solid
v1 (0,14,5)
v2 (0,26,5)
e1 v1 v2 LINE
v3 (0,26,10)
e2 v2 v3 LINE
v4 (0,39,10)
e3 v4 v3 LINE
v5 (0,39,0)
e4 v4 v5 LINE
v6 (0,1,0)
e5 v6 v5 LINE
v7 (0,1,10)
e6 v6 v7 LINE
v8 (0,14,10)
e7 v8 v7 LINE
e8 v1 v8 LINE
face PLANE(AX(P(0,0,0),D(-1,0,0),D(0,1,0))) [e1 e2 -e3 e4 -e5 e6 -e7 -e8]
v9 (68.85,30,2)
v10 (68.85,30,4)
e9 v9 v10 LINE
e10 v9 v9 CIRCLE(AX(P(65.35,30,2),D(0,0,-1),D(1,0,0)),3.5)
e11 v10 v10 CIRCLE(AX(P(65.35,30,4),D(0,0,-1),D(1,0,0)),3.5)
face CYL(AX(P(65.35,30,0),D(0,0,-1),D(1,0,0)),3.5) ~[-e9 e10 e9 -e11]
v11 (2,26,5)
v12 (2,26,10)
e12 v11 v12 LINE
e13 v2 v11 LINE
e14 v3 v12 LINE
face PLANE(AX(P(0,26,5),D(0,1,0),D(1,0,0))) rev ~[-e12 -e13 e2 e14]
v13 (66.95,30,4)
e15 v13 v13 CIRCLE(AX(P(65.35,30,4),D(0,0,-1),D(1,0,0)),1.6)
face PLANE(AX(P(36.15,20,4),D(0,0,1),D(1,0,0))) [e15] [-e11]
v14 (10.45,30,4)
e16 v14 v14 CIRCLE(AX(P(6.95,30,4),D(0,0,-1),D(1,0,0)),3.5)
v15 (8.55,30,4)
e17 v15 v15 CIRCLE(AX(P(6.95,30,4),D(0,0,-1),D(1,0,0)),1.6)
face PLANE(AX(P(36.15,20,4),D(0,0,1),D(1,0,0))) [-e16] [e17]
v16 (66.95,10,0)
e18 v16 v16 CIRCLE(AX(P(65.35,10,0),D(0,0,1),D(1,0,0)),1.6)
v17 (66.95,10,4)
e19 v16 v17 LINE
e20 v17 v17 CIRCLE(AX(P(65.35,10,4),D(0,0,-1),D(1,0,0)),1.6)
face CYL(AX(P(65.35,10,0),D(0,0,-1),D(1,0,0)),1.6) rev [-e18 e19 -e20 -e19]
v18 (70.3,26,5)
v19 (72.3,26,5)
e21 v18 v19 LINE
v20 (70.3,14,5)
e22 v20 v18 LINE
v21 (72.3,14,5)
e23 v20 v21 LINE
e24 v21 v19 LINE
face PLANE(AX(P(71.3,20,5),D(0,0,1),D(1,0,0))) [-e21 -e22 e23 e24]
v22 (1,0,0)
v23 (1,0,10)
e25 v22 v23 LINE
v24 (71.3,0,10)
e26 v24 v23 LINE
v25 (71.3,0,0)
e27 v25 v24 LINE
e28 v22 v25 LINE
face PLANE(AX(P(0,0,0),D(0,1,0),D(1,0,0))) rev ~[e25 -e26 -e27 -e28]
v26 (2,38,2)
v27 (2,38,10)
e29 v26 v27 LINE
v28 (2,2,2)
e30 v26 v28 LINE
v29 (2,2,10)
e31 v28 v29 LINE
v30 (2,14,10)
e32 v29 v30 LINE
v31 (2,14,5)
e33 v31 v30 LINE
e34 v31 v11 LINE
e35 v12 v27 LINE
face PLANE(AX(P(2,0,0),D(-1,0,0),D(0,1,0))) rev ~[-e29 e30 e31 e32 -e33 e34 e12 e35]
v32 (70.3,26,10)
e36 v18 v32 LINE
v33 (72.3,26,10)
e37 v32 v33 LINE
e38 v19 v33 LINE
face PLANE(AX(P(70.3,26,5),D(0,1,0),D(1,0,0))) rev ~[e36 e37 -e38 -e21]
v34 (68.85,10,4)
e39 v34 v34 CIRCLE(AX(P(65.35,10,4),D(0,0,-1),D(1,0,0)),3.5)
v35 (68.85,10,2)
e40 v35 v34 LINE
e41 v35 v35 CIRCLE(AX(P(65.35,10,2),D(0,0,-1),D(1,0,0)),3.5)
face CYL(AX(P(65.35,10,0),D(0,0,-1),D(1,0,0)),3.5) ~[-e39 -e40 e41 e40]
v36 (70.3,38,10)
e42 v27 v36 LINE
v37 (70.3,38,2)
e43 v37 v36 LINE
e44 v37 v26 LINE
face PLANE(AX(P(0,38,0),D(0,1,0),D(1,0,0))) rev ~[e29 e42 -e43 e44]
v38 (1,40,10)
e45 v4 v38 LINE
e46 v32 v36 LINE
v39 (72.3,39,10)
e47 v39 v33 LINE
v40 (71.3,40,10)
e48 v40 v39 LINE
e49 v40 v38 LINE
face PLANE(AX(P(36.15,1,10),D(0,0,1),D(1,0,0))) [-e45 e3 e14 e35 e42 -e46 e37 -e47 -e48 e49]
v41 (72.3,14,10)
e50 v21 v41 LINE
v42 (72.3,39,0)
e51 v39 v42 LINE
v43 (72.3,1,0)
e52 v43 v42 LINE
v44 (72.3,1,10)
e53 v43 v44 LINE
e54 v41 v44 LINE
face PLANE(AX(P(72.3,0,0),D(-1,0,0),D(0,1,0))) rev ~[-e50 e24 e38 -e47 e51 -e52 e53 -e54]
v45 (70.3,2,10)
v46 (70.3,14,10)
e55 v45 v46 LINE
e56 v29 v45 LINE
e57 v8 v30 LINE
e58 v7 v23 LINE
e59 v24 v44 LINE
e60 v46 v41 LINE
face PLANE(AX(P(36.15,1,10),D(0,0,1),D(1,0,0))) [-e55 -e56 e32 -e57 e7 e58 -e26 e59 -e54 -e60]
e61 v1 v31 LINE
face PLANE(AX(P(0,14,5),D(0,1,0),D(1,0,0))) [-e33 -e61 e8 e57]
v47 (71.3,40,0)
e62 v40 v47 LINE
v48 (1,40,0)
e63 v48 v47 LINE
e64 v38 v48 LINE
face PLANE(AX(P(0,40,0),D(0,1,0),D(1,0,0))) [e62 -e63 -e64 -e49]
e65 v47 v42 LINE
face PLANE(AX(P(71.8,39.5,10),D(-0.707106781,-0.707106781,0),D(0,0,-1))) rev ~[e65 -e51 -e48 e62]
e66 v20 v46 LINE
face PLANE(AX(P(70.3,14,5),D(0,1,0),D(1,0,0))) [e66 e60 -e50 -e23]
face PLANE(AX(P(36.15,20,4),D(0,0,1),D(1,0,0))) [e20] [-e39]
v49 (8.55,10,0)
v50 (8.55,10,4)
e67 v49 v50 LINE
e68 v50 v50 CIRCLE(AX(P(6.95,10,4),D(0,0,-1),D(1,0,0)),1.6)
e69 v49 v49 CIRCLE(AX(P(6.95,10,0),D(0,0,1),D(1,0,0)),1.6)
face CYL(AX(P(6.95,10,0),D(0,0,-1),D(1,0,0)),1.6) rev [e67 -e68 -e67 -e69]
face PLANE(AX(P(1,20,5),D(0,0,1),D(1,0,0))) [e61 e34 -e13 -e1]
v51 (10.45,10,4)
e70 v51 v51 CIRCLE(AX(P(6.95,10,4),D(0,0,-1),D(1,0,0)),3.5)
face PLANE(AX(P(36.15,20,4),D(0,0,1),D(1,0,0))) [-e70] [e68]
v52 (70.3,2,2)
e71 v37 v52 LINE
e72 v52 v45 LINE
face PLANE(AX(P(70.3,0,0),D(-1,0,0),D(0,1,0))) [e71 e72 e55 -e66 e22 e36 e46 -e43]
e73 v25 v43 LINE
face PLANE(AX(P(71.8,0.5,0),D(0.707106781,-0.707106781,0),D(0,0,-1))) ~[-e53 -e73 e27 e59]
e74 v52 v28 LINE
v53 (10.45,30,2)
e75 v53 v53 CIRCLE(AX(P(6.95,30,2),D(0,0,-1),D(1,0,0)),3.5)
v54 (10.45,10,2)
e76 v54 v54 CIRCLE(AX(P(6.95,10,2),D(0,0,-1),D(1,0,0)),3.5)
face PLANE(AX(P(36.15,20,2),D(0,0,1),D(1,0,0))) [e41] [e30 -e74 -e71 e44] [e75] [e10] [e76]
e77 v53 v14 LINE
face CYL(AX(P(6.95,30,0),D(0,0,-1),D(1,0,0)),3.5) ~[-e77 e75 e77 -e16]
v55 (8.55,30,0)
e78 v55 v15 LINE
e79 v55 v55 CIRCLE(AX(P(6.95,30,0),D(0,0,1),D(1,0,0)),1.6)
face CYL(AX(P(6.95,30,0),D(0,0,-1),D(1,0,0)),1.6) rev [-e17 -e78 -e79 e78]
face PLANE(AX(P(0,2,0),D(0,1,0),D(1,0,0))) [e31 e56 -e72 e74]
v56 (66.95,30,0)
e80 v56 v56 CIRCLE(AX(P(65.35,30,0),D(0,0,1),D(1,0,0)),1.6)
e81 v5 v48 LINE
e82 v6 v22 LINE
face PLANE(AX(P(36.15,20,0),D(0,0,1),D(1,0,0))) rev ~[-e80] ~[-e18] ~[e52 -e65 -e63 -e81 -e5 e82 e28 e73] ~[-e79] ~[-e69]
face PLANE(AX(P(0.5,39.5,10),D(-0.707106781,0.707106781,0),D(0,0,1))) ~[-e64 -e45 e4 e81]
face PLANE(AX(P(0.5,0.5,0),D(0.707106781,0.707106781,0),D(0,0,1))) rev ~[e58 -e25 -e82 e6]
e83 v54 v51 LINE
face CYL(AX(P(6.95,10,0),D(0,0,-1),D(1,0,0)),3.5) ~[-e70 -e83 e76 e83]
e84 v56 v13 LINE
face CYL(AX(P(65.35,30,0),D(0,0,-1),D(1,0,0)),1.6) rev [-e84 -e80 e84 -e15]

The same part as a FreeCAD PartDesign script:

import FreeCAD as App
import Part
import Sketcher
from FreeCAD import Vector
Q = App.Units.Quantity


def edges_at(feature, points):
    """Names of the edges that pass closest to the given points."""
    edges = feature.Shape.Edges
    near = lambda p: min(range(len(edges)), key=lambda i: edges[i].distToShape(Part.Vertex(*p))[0])
    return sorted({f"Edge{near(p) + 1}" for p in points})

doc = App.newDocument("Part")
body = doc.addObject("PartDesign::Body", "Body")

sketch1 = body.newObject("Sketcher::SketchObject", "Sketch")
sketch1.AttachmentSupport = (doc.getObject("XY_Plane"), [""])
sketch1.MapMode = "FlatFace"
sketch1.AttachmentOffset = App.Placement(Vector(0, 0, 4), App.Rotation())
sketch1.addGeometry([
    Part.LineSegment(Vector(2, 37, 0), Vector(2, 3, 0)),
    Part.LineSegment(Vector(2, 3, 0), Vector(70, 3, 0)),
    Part.LineSegment(Vector(70, 3, 0), Vector(70, 37, 0)),
    Part.LineSegment(Vector(70, 37, 0), Vector(2, 37, 0)),
], False)
sketch1.addConstraint([
    Sketcher.Constraint("Coincident", 0, 2, 1, 1),
    Sketcher.Constraint("Coincident", 1, 2, 2, 1),
    Sketcher.Constraint("Coincident", 2, 2, 3, 1),
    Sketcher.Constraint("Coincident", 3, 2, 0, 1),
    Sketcher.Constraint("Vertical", 0),
    Sketcher.Constraint("Horizontal", 1),
    Sketcher.Constraint("Vertical", 2),
    Sketcher.Constraint("Horizontal", 3),
    Sketcher.Constraint("DistanceX", 1, 1, 1, 2, Q("67.3 mm")),
    Sketcher.Constraint("DistanceY", 0, 2, 0, 1, Q("34.3 mm")),
    Sketcher.Constraint("DistanceX", -1, 1, 0, 2, Q("2.5 mm")),
    Sketcher.Constraint("DistanceY", -1, 1, 0, 2, Q("2.85 mm")),
])
pad1 = body.newObject("PartDesign::Pad", "Pad")
pad1.Profile = sketch1
pad1.Length = 1
body2 = doc.addObject("PartDesign::Body", "Body001")

sketch2 = body2.newObject("Sketcher::SketchObject", "Sketch001")
sketch2.AttachmentSupport = (doc.getObject("XY_Plane001"), [""])
sketch2.MapMode = "FlatFace"
sketch2.AttachmentOffset = App.Placement(Vector(0, 0, 2), App.Rotation())
sketch2.addGeometry([
    Part.LineSegment(Vector(0, 26, 0), Vector(0, 14, 0)),
    Part.LineSegment(Vector(0, 14, 0), Vector(2, 14, 0)),
    Part.LineSegment(Vector(2, 14, 0), Vector(2, 26, 0)),
    Part.LineSegment(Vector(2, 26, 0), Vector(0, 26, 0)),
], False)
sketch2.addConstraint([
    Sketcher.Constraint("Coincident", 0, 2, 1, 1),
    Sketcher.Constraint("Coincident", 1, 2, 2, 1),
    Sketcher.Constraint("Coincident", 2, 2, 3, 1),
    Sketcher.Constraint("Coincident", 3, 2, 0, 1),
    Sketcher.Constraint("Vertical", 0),
    Sketcher.Constraint("Horizontal", 1),
    Sketcher.Constraint("Vertical", 2),
    Sketcher.Constraint("Horizontal", 3),
    Sketcher.Constraint("PointOnObject", 0, 2, -2),
    Sketcher.Constraint("DistanceX", 1, 1, 1, 2, Q("2 mm")),
    Sketcher.Constraint("DistanceY", 0, 2, 0, 1, Q("12 mm")),
    Sketcher.Constraint("DistanceY", -1, 1, 0, 2, Q("14 mm")),
])
pad2 = body2.newObject("PartDesign::Pad", "Pad001")
pad2.Profile = sketch2
pad2.Length = 5
body3 = doc.addObject("PartDesign::Body", "Body002")
body3.AllowCompound = True

sketch3 = body3.newObject("Sketcher::SketchObject", "Sketch002")
sketch3.AttachmentSupport = (doc.getObject("XY_Plane002"), [""])
sketch3.MapMode = "FlatFace"
sketch3.AttachmentOffset = App.Placement(Vector(0, 0, 2), App.Rotation())
sketch3.addGeometry([
    Part.LineSegment(Vector(70.3, 26, 0), Vector(70.3, 14, 0)),
    Part.LineSegment(Vector(70.3, 14, 0), Vector(72.3, 14, 0)),
    Part.LineSegment(Vector(72.3, 14, 0), Vector(72.3, 26, 0)),
    Part.LineSegment(Vector(72.3, 26, 0), Vector(70.3, 26, 0)),
], False)
sketch3.addConstraint([
    Sketcher.Constraint("Coincident", 0, 2, 1, 1),
    Sketcher.Constraint("Coincident", 1, 2, 2, 1),
    Sketcher.Constraint("Coincident", 2, 2, 3, 1),
    Sketcher.Constraint("Coincident", 3, 2, 0, 1),
    Sketcher.Constraint("Vertical", 0),
    Sketcher.Constraint("Horizontal", 1),
    Sketcher.Constraint("Vertical", 2),
    Sketcher.Constraint("Horizontal", 3),
    Sketcher.Constraint("DistanceX", 1, 1, 1, 2, Q("2 mm")),
    Sketcher.Constraint("DistanceY", 0, 2, 0, 1, Q("12 mm")),
    Sketcher.Constraint("DistanceY", -1, 1, 0, 2, Q("14 mm")),
    Sketcher.Constraint("DistanceX", -1, 1, 0, 2, Q("70.3 mm")),
])
pad3 = body3.newObject("PartDesign::Pad", "Pad002")
pad3.Profile = sketch3
pad3.Length = 5
doc.recompute()

boolean = body3.newObject("PartDesign::Boolean", "Boolean")
boolean.Type = "Fuse"
boolean.addObjects([body2])
body4 = doc.addObject("PartDesign::Body", "Body003")
body4.AllowCompound = True
doc.recompute()

body3.Placement = App.Placement(Vector(0, 0, 3), App.Rotation(Vector(0, 0, 1), 0))
boolean2 = body4.newObject("PartDesign::Boolean", "Boolean001")
boolean2.Type = "Fuse"
boolean2.addObjects([body3])
body5 = doc.addObject("PartDesign::Body", "Body004")

sketch4 = body5.newObject("Sketcher::SketchObject", "Sketch003")
sketch4.AttachmentSupport = (doc.getObject("XY_Plane004"), [""])
sketch4.MapMode = "FlatFace"
sketch4.addGeometry(Part.Circle(Vector(65.3, 10, 0), Vector(0, 0, 1), 1.6), False)
sketch4.addConstraint([
    Sketcher.Constraint("Diameter", 0, Q("3.2 mm")),
    Sketcher.Constraint("DistanceY", -1, 1, 0, 3, Q("10 mm")),
    Sketcher.Constraint("DistanceX", -1, 1, 0, 3, Q("65.35 mm")),
])
pad4 = body5.newObject("PartDesign::Pad", "Pad003")
pad4.Profile = sketch4
pad4.Length = 5
body6 = doc.addObject("PartDesign::Body", "Body005")

sketch5 = body6.newObject("Sketcher::SketchObject", "Sketch004")
sketch5.AttachmentSupport = (doc.getObject("XY_Plane005"), [""])
sketch5.MapMode = "FlatFace"
sketch5.addGeometry(Part.Circle(Vector(7, 30, 0), Vector(0, 0, 1), 1.6), False)
sketch5.addConstraint([
    Sketcher.Constraint("Diameter", 0, Q("3.2 mm")),
    Sketcher.Constraint("DistanceY", -1, 1, 0, 3, Q("30 mm")),
    Sketcher.Constraint("DistanceX", -1, 1, 0, 3, Q("6.95 mm")),
])
pad5 = body6.newObject("PartDesign::Pad", "Pad004")
pad5.Profile = sketch5
pad5.Length = 5
body7 = doc.addObject("PartDesign::Body", "Body006")

sketch6 = body7.newObject("Sketcher::SketchObject", "Sketch005")
sketch6.AttachmentSupport = (doc.getObject("XY_Plane006"), [""])
sketch6.MapMode = "FlatFace"
sketch6.addGeometry(Part.Circle(Vector(65.3, 30, 0), Vector(0, 0, 1), 1.6), False)
sketch6.addConstraint([
    Sketcher.Constraint("Diameter", 0, Q("3.2 mm")),
    Sketcher.Constraint("DistanceY", -1, 1, 0, 3, Q("30 mm")),
    Sketcher.Constraint("DistanceX", -1, 1, 0, 3, Q("65.35 mm")),
])
pad6 = body7.newObject("PartDesign::Pad", "Pad005")
pad6.Profile = sketch6
pad6.Length = 5
body8 = doc.addObject("PartDesign::Body", "Body007")
body8.AllowCompound = True

sketch7 = body8.newObject("Sketcher::SketchObject", "Sketch006")
sketch7.AttachmentSupport = (doc.getObject("XY_Plane007"), [""])
sketch7.MapMode = "FlatFace"
sketch7.addGeometry(Part.Circle(Vector(7, 10, 0), Vector(0, 0, 1), 1.6), False)
sketch7.addConstraint([
    Sketcher.Constraint("Diameter", 0, Q("3.2 mm")),
    Sketcher.Constraint("DistanceY", -1, 1, 0, 3, Q("10 mm")),
    Sketcher.Constraint("DistanceX", -1, 1, 0, 3, Q("6.95 mm")),
])
pad7 = body8.newObject("PartDesign::Pad", "Pad006")
pad7.Profile = sketch7
pad7.Length = 5
doc.recompute()

boolean3 = body8.newObject("PartDesign::Boolean", "Boolean002")
boolean3.Type = "Fuse"
boolean3.addObjects([body5])
doc.recompute()

boolean4 = body8.newObject("PartDesign::Boolean", "Boolean003")
boolean4.Type = "Fuse"
boolean4.addObjects([body6])
doc.recompute()

boolean5 = body8.newObject("PartDesign::Boolean", "Boolean004")
boolean5.Type = "Fuse"
boolean5.addObjects([body7])
body9 = doc.addObject("PartDesign::Body", "Body008")

sketch8 = body9.newObject("Sketcher::SketchObject", "Sketch007")
sketch8.AttachmentSupport = (doc.getObject("XY_Plane008"), [""])
sketch8.MapMode = "FlatFace"
sketch8.addGeometry([
    Part.LineSegment(Vector(0, 2, 0), Vector(0, 0, 0)),
    Part.LineSegment(Vector(0, 0, 0), Vector(72.3, 0, 0)),
    Part.LineSegment(Vector(72.3, 0, 0), Vector(72.3, 2, 0)),
    Part.LineSegment(Vector(72.3, 2, 0), Vector(0, 2, 0)),
], False)
sketch8.addConstraint([
    Sketcher.Constraint("Coincident", 0, 2, 1, 1),
    Sketcher.Constraint("Coincident", 1, 2, 2, 1),
    Sketcher.Constraint("Coincident", 2, 2, 3, 1),
    Sketcher.Constraint("Coincident", 3, 2, 0, 1),
    Sketcher.Constraint("Vertical", 0),
    Sketcher.Constraint("Horizontal", 1),
    Sketcher.Constraint("Vertical", 2),
    Sketcher.Constraint("Horizontal", 3),
    Sketcher.Constraint("Coincident", 0, 2, -1, 1),
    Sketcher.Constraint("DistanceY", 0, 2, 0, 1, Q("2 mm")),
    Sketcher.Constraint("DistanceX", 1, 1, 1, 2, Q("72.3 mm")),
])
pad8 = body9.newObject("PartDesign::Pad", "Pad007")
pad8.Profile = sketch8
pad8.Length = 10
body10 = doc.addObject("PartDesign::Body", "Body009")

sketch9 = body10.newObject("Sketcher::SketchObject", "Sketch008")
sketch9.AttachmentSupport = (doc.getObject("XY_Plane009"), [""])
sketch9.MapMode = "FlatFace"
sketch9.addGeometry([
    Part.LineSegment(Vector(70.3, 40, 0), Vector(70.3, 0, 0)),
    Part.LineSegment(Vector(70.3, 0, 0), Vector(72.3, 0, 0)),
    Part.LineSegment(Vector(72.3, 0, 0), Vector(72.3, 40, 0)),
    Part.LineSegment(Vector(72.3, 40, 0), Vector(70.3, 40, 0)),
], False)
sketch9.addConstraint([
    Sketcher.Constraint("Coincident", 0, 2, 1, 1),
    Sketcher.Constraint("Coincident", 1, 2, 2, 1),
    Sketcher.Constraint("Coincident", 2, 2, 3, 1),
    Sketcher.Constraint("Coincident", 3, 2, 0, 1),
    Sketcher.Constraint("Vertical", 0),
    Sketcher.Constraint("Horizontal", 1),
    Sketcher.Constraint("Vertical", 2),
    Sketcher.Constraint("Horizontal", 3),
    Sketcher.Constraint("PointOnObject", 0, 2, -1),
    Sketcher.Constraint("DistanceX", 1, 1, 1, 2, Q("2 mm")),
    Sketcher.Constraint("DistanceY", 0, 2, 0, 1, Q("40 mm")),
    Sketcher.Constraint("DistanceX", -1, 1, 0, 2, Q("70.3 mm")),
])
pad9 = body10.newObject("PartDesign::Pad", "Pad008")
pad9.Profile = sketch9
pad9.Length = 10
body11 = doc.addObject("PartDesign::Body", "Body010")

sketch10 = body11.newObject("Sketcher::SketchObject", "Sketch009")
sketch10.AttachmentSupport = (doc.getObject("XY_Plane010"), [""])
sketch10.MapMode = "FlatFace"
sketch10.addGeometry([
    Part.LineSegment(Vector(0, 40, 0), Vector(0, 0, 0)),
    Part.LineSegment(Vector(0, 0, 0), Vector(2, 0, 0)),
    Part.LineSegment(Vector(2, 0, 0), Vector(2, 40, 0)),
    Part.LineSegment(Vector(2, 40, 0), Vector(0, 40, 0)),
], False)
sketch10.addConstraint([
    Sketcher.Constraint("Coincident", 0, 2, 1, 1),
    Sketcher.Constraint("Coincident", 1, 2, 2, 1),
    Sketcher.Constraint("Coincident", 2, 2, 3, 1),
    Sketcher.Constraint("Coincident", 3, 2, 0, 1),
    Sketcher.Constraint("Vertical", 0),
    Sketcher.Constraint("Horizontal", 1),
    Sketcher.Constraint("Vertical", 2),
    Sketcher.Constraint("Horizontal", 3),
    Sketcher.Constraint("Coincident", 0, 2, -1, 1),
    Sketcher.Constraint("DistanceX", 1, 1, 1, 2, Q("2 mm")),
    Sketcher.Constraint("DistanceY", 0, 2, 0, 1, Q("40 mm")),
])
pad10 = body11.newObject("PartDesign::Pad", "Pad009")
pad10.Profile = sketch10
pad10.Length = 10
body12 = doc.addObject("PartDesign::Body", "Body011")
body12.AllowCompound = True

sketch11 = body12.newObject("Sketcher::SketchObject", "Sketch010")
sketch11.AttachmentSupport = (doc.getObject("XY_Plane011"), [""])
sketch11.MapMode = "FlatFace"
sketch11.addGeometry([
    Part.LineSegment(Vector(0, 40, 0), Vector(0, 38, 0)),
    Part.LineSegment(Vector(0, 38, 0), Vector(72.3, 38, 0)),
    Part.LineSegment(Vector(72.3, 38, 0), Vector(72.3, 40, 0)),
    Part.LineSegment(Vector(72.3, 40, 0), Vector(0, 40, 0)),
], False)
sketch11.addConstraint([
    Sketcher.Constraint("Coincident", 0, 2, 1, 1),
    Sketcher.Constraint("Coincident", 1, 2, 2, 1),
    Sketcher.Constraint("Coincident", 2, 2, 3, 1),
    Sketcher.Constraint("Coincident", 3, 2, 0, 1),
    Sketcher.Constraint("Vertical", 0),
    Sketcher.Constraint("Horizontal", 1),
    Sketcher.Constraint("Vertical", 2),
    Sketcher.Constraint("Horizontal", 3),
    Sketcher.Constraint("PointOnObject", 0, 2, -2),
    Sketcher.Constraint("DistanceY", 0, 2, 0, 1, Q("2 mm")),
    Sketcher.Constraint("DistanceX", 1, 1, 1, 2, Q("72.3 mm")),
    Sketcher.Constraint("DistanceY", -1, 1, 0, 2, Q("38 mm")),
])
pad11 = body12.newObject("PartDesign::Pad", "Pad010")
pad11.Profile = sketch11
pad11.Length = 10
doc.recompute()

boolean6 = body12.newObject("PartDesign::Boolean", "Boolean005")
boolean6.Type = "Fuse"
boolean6.addObjects([body9])
doc.recompute()

boolean7 = body12.newObject("PartDesign::Boolean", "Boolean006")
boolean7.Type = "Fuse"
boolean7.addObjects([body10])
doc.recompute()

boolean8 = body12.newObject("PartDesign::Boolean", "Boolean007")
boolean8.Type = "Fuse"
boolean8.addObjects([body11])
body13 = doc.addObject("PartDesign::Body", "Body012")

sketch12 = body13.newObject("Sketcher::SketchObject", "Sketch011")
sketch12.AttachmentSupport = (doc.getObject("XY_Plane012"), [""])
sketch12.MapMode = "FlatFace"
sketch12.addGeometry([
    Part.LineSegment(Vector(0, 40, 0), Vector(0, 0, 0)),
    Part.LineSegment(Vector(0, 0, 0), Vector(72, 0, 0)),
    Part.LineSegment(Vector(72, 0, 0), Vector(72, 40, 0)),
    Part.LineSegment(Vector(72, 40, 0), Vector(0, 40, 0)),
], False)
sketch12.addConstraint([
    Sketcher.Constraint("Coincident", 0, 2, 1, 1),
    Sketcher.Constraint("Coincident", 1, 2, 2, 1),
    Sketcher.Constraint("Coincident", 2, 2, 3, 1),
    Sketcher.Constraint("Coincident", 3, 2, 0, 1),
    Sketcher.Constraint("Vertical", 0),
    Sketcher.Constraint("Horizontal", 1),
    Sketcher.Constraint("Vertical", 2),
    Sketcher.Constraint("Horizontal", 3),
    Sketcher.Constraint("Coincident", 0, 2, -1, 1),
    Sketcher.Constraint("DistanceY", 0, 2, 0, 1, Q("40 mm")),
    Sketcher.Constraint("DistanceX", 1, 1, 1, 2, Q("72.3 mm")),
])
pad12 = body13.newObject("PartDesign::Pad", "Pad011")
pad12.Profile = sketch12
pad12.Length = 2
doc.recompute()

boolean9 = body13.newObject("PartDesign::Boolean", "Boolean008")
boolean9.Type = "Fuse"
boolean9.addObjects([body12])
body14 = doc.addObject("PartDesign::Body", "Body013")

sketch13 = body14.newObject("Sketcher::SketchObject", "Sketch012")
sketch13.AttachmentSupport = (doc.getObject("XY_Plane013"), [""])
sketch13.MapMode = "FlatFace"
sketch13.addGeometry(Part.Circle(Vector(65.3, 30, 0), Vector(0, 0, 1), 3.5), False)
sketch13.addConstraint([
    Sketcher.Constraint("Diameter", 0, Q("7 mm")),
    Sketcher.Constraint("DistanceY", -1, 1, 0, 3, Q("30 mm")),
    Sketcher.Constraint("DistanceX", -1, 1, 0, 3, Q("65.35 mm")),
])
pad13 = body14.newObject("PartDesign::Pad", "Pad012")
pad13.Profile = sketch13
pad13.Length = 5
body15 = doc.addObject("PartDesign::Body", "Body014")

sketch14 = body15.newObject("Sketcher::SketchObject", "Sketch013")
sketch14.AttachmentSupport = (doc.getObject("XY_Plane014"), [""])
sketch14.MapMode = "FlatFace"
sketch14.addGeometry(Part.Circle(Vector(65.3, 10, 0), Vector(0, 0, 1), 3.5), False)
sketch14.addConstraint([
    Sketcher.Constraint("Diameter", 0, Q("7 mm")),
    Sketcher.Constraint("DistanceY", -1, 1, 0, 3, Q("10 mm")),
    Sketcher.Constraint("DistanceX", -1, 1, 0, 3, Q("65.35 mm")),
])
pad14 = body15.newObject("PartDesign::Pad", "Pad013")
pad14.Profile = sketch14
pad14.Length = 5
body16 = doc.addObject("PartDesign::Body", "Body015")

sketch15 = body16.newObject("Sketcher::SketchObject", "Sketch014")
sketch15.AttachmentSupport = (doc.getObject("XY_Plane015"), [""])
sketch15.MapMode = "FlatFace"
sketch15.addGeometry(Part.Circle(Vector(7, 10, 0), Vector(0, 0, 1), 3.5), False)
sketch15.addConstraint([
    Sketcher.Constraint("Diameter", 0, Q("7 mm")),
    Sketcher.Constraint("DistanceY", -1, 1, 0, 3, Q("10 mm")),
    Sketcher.Constraint("DistanceX", -1, 1, 0, 3, Q("6.95 mm")),
])
pad15 = body16.newObject("PartDesign::Pad", "Pad014")
pad15.Profile = sketch15
pad15.Length = 5
body17 = doc.addObject("PartDesign::Body", "Body016")
body17.AllowCompound = True

sketch16 = body17.newObject("Sketcher::SketchObject", "Sketch015")
sketch16.AttachmentSupport = (doc.getObject("XY_Plane016"), [""])
sketch16.MapMode = "FlatFace"
sketch16.addGeometry(Part.Circle(Vector(7, 30, 0), Vector(0, 0, 1), 3.5), False)
sketch16.addConstraint([
    Sketcher.Constraint("Diameter", 0, Q("7 mm")),
    Sketcher.Constraint("DistanceY", -1, 1, 0, 3, Q("30 mm")),
    Sketcher.Constraint("DistanceX", -1, 1, 0, 3, Q("6.95 mm")),
])
pad16 = body17.newObject("PartDesign::Pad", "Pad015")
pad16.Profile = sketch16
pad16.Length = 5
doc.recompute()

boolean10 = body17.newObject("PartDesign::Boolean", "Boolean009")
boolean10.Type = "Fuse"
boolean10.addObjects([body14])
doc.recompute()

boolean11 = body17.newObject("PartDesign::Boolean", "Boolean010")
boolean11.Type = "Fuse"
boolean11.addObjects([body15])
doc.recompute()

boolean12 = body17.newObject("PartDesign::Boolean", "Boolean011")
boolean12.Type = "Fuse"
boolean12.addObjects([body16])
doc.recompute()

boolean13 = body17.newObject("PartDesign::Boolean", "Boolean012")
boolean13.Type = "Fuse"
boolean13.addObjects([body13])
doc.recompute()

boolean14 = body17.newObject("PartDesign::Boolean", "Boolean013")
boolean14.Type = "Cut"
boolean14.addObjects([body8])
doc.recompute()

boolean15 = body17.newObject("PartDesign::Boolean", "Boolean014")
boolean15.Type = "Cut"
boolean15.addObjects([body4])
doc.recompute()

boolean16 = body17.newObject("PartDesign::Boolean", "Boolean015")
boolean16.Type = "Cut"
boolean16.addObjects([body])
doc.recompute()

chamfer = body17.newObject("PartDesign::Chamfer", "Chamfer")
chamfer.Base = (boolean16, edges_at(boolean16, [
    (0, 0, 5),
    (0, 40, 5),
    (72.3, 0, 5),
    (72.3, 40, 5),
    (0, 0, 5),
    (0, 40, 5),
    (72.3, 0, 5),
    (72.3, 40, 5),
]))
chamfer.Size = 1

doc.recompute()
